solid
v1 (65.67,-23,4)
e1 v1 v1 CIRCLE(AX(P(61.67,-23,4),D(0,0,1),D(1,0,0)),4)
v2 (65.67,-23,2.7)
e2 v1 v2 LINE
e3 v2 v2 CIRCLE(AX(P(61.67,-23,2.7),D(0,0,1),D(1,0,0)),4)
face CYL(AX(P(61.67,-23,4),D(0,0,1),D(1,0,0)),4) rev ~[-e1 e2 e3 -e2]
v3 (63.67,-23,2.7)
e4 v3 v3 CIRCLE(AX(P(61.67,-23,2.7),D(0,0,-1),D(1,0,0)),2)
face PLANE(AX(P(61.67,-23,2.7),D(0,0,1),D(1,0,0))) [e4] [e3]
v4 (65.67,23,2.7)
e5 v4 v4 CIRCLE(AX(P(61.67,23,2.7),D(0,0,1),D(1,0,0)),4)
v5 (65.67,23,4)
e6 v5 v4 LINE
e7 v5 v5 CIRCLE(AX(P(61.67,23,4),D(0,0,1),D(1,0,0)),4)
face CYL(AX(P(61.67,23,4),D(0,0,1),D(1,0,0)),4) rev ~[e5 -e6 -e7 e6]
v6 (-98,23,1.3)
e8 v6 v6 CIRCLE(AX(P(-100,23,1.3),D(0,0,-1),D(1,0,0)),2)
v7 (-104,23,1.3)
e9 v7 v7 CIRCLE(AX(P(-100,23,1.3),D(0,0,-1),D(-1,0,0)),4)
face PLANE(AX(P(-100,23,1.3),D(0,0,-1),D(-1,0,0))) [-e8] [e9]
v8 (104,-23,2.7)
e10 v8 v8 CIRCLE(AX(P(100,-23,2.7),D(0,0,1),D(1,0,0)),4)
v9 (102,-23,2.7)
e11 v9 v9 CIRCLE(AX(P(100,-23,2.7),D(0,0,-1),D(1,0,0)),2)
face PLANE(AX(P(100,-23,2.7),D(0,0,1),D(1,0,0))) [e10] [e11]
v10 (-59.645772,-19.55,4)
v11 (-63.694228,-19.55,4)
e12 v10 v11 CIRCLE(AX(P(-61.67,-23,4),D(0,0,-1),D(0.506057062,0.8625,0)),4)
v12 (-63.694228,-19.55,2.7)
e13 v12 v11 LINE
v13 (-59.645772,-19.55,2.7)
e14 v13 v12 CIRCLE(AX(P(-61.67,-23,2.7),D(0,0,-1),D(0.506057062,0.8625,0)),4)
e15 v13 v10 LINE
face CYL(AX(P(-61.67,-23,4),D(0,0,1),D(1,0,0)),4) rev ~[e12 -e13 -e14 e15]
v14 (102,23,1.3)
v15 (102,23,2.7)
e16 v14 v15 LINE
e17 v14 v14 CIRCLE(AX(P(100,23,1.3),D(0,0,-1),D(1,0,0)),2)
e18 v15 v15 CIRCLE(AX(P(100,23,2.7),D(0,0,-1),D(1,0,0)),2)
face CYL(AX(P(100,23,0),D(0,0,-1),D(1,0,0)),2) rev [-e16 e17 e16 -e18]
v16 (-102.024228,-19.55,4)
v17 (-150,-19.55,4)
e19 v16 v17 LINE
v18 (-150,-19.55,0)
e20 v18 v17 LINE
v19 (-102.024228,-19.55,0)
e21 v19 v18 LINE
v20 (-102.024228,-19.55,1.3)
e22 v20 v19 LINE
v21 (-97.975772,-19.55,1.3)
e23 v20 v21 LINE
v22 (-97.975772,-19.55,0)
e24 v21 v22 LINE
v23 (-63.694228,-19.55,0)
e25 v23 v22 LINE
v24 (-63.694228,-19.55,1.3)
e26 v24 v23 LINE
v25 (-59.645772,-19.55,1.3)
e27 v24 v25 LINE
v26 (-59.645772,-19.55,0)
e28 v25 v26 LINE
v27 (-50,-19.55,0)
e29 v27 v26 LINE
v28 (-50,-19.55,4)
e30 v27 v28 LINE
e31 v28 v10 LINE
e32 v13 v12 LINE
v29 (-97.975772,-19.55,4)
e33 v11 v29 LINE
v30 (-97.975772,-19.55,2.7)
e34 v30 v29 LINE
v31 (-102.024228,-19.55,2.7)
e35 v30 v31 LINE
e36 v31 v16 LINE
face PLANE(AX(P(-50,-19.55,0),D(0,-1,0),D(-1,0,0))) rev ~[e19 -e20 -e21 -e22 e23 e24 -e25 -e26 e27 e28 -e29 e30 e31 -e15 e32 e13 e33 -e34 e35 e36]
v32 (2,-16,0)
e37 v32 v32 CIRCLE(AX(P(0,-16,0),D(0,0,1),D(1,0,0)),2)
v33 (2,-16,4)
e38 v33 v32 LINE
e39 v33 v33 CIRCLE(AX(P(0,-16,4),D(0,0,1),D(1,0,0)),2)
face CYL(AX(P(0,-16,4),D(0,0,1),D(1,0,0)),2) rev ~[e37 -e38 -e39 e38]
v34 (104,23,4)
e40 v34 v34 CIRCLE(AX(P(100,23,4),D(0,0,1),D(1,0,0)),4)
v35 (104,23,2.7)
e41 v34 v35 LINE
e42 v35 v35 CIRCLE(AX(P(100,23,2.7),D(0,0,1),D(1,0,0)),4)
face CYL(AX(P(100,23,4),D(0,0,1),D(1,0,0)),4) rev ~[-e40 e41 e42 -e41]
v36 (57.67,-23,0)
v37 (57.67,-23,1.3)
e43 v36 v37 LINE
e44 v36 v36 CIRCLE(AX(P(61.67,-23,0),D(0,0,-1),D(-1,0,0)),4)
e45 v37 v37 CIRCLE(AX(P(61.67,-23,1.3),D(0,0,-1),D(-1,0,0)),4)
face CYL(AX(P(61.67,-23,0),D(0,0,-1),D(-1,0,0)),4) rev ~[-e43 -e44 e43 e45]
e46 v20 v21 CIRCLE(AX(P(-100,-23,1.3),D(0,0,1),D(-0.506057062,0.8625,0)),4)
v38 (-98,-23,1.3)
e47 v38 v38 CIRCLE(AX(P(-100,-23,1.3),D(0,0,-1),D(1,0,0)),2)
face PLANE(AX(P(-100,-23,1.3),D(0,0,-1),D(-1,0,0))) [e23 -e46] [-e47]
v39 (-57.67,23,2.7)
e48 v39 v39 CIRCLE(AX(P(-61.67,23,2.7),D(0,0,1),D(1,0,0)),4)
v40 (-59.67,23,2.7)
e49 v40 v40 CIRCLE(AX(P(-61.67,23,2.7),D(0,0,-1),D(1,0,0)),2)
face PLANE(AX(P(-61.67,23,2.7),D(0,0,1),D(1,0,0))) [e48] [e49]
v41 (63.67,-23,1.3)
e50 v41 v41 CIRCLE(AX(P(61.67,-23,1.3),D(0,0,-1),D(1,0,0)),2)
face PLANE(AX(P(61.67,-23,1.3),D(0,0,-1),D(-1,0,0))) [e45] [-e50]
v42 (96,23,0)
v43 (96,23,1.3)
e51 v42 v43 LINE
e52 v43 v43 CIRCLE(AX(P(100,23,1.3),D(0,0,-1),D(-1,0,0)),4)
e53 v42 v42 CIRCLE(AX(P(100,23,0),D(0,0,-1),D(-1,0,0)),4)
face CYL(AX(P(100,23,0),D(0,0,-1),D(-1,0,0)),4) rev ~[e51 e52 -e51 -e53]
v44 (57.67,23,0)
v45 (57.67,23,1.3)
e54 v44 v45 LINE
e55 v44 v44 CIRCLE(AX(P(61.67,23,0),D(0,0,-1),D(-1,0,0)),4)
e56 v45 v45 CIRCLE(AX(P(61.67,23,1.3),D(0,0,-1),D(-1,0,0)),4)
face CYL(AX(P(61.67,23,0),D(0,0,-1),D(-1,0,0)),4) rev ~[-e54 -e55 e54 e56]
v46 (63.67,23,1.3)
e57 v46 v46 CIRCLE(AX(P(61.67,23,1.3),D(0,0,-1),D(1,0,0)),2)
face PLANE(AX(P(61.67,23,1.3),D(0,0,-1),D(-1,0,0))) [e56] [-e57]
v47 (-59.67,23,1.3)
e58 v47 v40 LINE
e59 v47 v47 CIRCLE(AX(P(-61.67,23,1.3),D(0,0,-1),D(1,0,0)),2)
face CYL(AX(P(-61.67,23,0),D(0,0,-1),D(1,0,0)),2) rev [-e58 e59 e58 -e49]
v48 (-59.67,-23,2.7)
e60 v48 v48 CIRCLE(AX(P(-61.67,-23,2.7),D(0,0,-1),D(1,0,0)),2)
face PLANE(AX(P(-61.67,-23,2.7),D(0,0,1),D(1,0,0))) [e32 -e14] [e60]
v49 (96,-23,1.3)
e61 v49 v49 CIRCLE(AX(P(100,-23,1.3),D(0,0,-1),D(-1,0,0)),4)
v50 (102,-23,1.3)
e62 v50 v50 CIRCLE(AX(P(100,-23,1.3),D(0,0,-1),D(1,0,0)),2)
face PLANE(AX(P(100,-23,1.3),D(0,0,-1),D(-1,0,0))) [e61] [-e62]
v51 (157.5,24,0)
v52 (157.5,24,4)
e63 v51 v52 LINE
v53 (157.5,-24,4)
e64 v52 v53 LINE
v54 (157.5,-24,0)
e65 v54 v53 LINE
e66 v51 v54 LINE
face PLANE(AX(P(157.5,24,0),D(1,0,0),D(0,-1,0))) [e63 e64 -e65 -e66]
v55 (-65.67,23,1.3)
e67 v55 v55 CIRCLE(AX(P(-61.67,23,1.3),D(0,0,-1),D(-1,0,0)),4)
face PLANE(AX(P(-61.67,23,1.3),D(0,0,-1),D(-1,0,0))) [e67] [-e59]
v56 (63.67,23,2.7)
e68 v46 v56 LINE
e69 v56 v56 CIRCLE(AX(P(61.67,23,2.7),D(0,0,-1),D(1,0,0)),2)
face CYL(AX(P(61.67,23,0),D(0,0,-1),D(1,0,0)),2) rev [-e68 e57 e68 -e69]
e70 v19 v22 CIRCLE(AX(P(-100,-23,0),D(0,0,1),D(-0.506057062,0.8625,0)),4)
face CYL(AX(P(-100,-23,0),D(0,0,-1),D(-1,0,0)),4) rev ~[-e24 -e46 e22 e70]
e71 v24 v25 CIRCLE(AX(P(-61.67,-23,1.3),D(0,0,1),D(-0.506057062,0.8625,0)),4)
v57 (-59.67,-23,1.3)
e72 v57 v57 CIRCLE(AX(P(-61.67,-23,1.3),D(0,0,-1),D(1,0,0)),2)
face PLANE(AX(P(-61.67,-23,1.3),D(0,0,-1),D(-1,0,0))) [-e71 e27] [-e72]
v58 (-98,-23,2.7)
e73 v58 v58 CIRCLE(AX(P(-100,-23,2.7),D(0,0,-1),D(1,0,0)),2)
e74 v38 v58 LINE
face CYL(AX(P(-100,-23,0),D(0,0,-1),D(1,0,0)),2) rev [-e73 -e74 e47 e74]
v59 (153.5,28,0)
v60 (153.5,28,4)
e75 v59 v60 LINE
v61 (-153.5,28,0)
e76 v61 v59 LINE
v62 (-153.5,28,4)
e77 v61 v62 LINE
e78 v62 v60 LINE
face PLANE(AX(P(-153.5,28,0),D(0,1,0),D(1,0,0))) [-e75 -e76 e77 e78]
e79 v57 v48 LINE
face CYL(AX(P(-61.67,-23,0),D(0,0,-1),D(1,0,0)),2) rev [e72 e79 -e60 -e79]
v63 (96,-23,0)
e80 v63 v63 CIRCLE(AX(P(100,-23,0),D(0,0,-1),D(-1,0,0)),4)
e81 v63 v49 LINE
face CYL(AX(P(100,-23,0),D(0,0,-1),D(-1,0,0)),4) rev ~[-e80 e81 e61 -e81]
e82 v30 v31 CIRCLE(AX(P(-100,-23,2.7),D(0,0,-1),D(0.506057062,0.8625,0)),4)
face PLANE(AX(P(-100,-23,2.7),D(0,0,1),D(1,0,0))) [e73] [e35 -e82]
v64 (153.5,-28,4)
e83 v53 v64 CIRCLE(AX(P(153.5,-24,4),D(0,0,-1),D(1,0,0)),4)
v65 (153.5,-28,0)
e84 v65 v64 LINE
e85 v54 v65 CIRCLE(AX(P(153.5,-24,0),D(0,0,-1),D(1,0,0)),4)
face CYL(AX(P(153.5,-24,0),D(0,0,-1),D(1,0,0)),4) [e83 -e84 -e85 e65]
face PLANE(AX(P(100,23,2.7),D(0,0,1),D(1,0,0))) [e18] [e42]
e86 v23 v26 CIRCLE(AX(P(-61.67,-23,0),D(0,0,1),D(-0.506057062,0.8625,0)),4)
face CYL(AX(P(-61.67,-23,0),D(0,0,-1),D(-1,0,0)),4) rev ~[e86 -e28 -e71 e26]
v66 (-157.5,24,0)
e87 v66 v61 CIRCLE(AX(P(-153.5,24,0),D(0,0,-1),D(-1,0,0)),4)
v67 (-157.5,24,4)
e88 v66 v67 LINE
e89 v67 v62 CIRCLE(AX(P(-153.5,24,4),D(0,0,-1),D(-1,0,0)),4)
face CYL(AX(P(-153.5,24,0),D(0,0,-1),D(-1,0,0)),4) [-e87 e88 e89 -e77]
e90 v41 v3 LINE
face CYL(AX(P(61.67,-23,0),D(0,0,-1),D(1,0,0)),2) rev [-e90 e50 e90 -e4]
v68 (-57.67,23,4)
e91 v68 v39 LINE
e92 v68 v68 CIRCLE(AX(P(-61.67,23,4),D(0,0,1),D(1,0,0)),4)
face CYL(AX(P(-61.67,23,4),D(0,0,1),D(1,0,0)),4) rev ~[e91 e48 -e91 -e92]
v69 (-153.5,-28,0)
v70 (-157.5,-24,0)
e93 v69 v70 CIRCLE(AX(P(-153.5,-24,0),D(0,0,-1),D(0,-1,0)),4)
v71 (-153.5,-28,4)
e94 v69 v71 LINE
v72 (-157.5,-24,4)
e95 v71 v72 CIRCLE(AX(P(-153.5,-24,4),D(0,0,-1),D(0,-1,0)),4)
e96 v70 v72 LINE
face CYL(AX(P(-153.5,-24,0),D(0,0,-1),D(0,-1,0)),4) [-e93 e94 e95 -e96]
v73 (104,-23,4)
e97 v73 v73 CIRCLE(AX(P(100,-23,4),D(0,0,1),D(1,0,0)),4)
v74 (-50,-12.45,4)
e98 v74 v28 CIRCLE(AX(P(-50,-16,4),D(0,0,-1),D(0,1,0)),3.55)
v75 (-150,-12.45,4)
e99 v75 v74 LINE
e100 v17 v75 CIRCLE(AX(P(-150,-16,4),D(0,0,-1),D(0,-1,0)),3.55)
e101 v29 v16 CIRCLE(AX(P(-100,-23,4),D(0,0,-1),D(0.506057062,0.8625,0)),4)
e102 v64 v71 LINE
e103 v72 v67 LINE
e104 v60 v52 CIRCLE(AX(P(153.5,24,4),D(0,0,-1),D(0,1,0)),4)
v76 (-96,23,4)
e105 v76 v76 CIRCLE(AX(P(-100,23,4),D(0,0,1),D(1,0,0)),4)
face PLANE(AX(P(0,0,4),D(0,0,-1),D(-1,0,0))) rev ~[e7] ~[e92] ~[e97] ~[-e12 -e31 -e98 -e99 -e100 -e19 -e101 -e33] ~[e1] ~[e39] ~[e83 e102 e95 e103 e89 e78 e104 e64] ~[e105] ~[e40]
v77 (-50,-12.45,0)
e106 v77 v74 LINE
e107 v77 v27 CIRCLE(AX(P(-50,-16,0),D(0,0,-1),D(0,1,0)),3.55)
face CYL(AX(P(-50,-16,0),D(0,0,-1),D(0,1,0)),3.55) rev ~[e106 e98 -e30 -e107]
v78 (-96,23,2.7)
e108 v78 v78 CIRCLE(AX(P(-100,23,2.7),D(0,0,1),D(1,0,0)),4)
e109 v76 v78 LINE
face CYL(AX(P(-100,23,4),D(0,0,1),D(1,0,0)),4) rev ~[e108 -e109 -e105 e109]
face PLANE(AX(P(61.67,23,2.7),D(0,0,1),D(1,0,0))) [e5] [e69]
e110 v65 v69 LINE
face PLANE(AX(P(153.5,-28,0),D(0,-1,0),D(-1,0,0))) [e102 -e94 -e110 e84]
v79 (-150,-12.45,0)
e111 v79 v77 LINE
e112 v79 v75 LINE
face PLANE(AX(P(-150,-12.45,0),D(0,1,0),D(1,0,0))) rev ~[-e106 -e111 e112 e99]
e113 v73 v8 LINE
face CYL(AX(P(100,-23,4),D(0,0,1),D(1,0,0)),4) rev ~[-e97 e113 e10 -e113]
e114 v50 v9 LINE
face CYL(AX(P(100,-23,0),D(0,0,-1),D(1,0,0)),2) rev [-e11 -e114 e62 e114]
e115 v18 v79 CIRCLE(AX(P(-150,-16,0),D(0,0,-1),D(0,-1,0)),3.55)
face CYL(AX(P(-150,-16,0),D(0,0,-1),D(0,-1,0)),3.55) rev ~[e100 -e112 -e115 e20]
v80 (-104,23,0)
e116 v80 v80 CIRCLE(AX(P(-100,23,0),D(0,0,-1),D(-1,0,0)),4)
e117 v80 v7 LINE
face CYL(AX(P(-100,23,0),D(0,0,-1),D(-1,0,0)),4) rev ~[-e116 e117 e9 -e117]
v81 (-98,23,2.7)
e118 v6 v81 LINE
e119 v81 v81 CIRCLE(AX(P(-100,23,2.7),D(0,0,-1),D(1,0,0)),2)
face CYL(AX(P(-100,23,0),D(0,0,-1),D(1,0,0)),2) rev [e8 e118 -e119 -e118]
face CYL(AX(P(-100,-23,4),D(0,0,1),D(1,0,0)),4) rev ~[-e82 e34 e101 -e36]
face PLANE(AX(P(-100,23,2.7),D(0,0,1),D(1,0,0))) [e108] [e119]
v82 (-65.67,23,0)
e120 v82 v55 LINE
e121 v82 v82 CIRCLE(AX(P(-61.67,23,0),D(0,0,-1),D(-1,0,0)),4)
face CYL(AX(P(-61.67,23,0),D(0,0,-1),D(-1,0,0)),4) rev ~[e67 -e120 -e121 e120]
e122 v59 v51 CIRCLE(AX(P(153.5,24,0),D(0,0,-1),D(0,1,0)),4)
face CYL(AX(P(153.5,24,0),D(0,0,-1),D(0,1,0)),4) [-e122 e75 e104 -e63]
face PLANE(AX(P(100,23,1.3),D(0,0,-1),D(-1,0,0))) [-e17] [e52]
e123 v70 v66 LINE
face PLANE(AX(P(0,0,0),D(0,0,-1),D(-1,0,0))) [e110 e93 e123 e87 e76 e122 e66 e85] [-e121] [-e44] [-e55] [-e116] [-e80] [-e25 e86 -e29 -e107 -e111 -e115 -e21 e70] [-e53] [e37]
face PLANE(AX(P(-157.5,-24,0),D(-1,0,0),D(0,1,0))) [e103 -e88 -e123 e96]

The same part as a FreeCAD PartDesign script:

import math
import FreeCAD as App
import Part
import Sketcher
from FreeCAD import Vector
Q = App.Units.Quantity

doc = App.newDocument("Part")
body = doc.addObject("PartDesign::Body", "Body")

# Sketch on XY plane
sketch1 = doc.addObject("Sketcher::SketchObject", "Sketch")
body.addObject(sketch1)
sketch1.AttachmentSupport = (doc.XY_Plane, [""])
sketch1.MapMode = "FlatFace"
sketch1.addGeometry(Part.LineSegment(Vector(-153.5, -28, 0), Vector(153.5, -28, 0)), False)
sketch1.addGeometry(Part.ArcOfCircle(Part.Circle(Vector(153.5, -24, 0), Vector(0, 0, 1), 4), math.radians(-90), math.radians(0)), False)
sketch1.addGeometry(Part.LineSegment(Vector(157.5, -24, 0), Vector(157.5, 24, 0)), False)
sketch1.addGeometry(Part.ArcOfCircle(Part.Circle(Vector(153.5, 24, 0), Vector(0, 0, 1), 4), math.radians(0), math.radians(90)), False)
sketch1.addGeometry(Part.LineSegment(Vector(153.5, 28, 0), Vector(-153.5, 28, 0)), False)
sketch1.addGeometry(Part.ArcOfCircle(Part.Circle(Vector(-153.5, 24, 0), Vector(0, 0, 1), 4), math.radians(90), math.radians(180)), False)
sketch1.addGeometry(Part.LineSegment(Vector(-157.5, 24, 0), Vector(-157.5, -24, 0)), False)
sketch1.addGeometry(Part.ArcOfCircle(Part.Circle(Vector(-153.5, -24, 0), Vector(0, 0, 1), 4), math.radians(180), math.radians(270)), False)
sketch1.addGeometry(Part.Circle(Vector(100, -23, 0), Vector(0, 0, 1), 2), False)
sketch1.addGeometry(Part.Circle(Vector(61.7, -23, 0), Vector(0, 0, 1), 2), False)
sketch1.addGeometry(Part.Circle(Vector(-61.7, -23, 0), Vector(0, 0, 1), 2), False)
sketch1.addGeometry(Part.Circle(Vector(-100, -23, 0), Vector(0, 0, 1), 2), False)
sketch1.addGeometry(Part.LineSegment(Vector(-150, -12.4, 0), Vector(-50, -12.4, 0)), False)
sketch1.addGeometry(Part.ArcOfCircle(Part.Circle(Vector(-50, -16, 0), Vector(0, 0, 1), 3.5), math.radians(-90), math.radians(90)), False)
sketch1.addGeometry(Part.LineSegment(Vector(-50, -19.6, 0), Vector(-150, -19.6, 0)), False)
sketch1.addGeometry(Part.ArcOfCircle(Part.Circle(Vector(-150, -16, 0), Vector(0, 0, 1), 3.5), math.radians(90), math.radians(270)), False)
sketch1.addGeometry(Part.Circle(Vector(100, 23, 0), Vector(0, 0, 1), 2), False)
sketch1.addGeometry(Part.Circle(Vector(61.7, 23, 0), Vector(0, 0, 1), 2), False)
sketch1.addGeometry(Part.Circle(Vector(-61.7, 23, 0), Vector(0, 0, 1), 2), False)
sketch1.addGeometry(Part.Circle(Vector(-100, 23, 0), Vector(0, 0, 1), 2), False)
sketch1.addConstraint(Sketcher.Constraint("Tangent", 0, 2, 1, 1))
sketch1.addConstraint(Sketcher.Constraint("Tangent", 1, 2, 2, 1))
sketch1.addConstraint(Sketcher.Constraint("Tangent", 2, 2, 3, 1))
sketch1.addConstraint(Sketcher.Constraint("Tangent", 3, 2, 4, 1))
sketch1.addConstraint(Sketcher.Constraint("Tangent", 4, 2, 5, 1))
sketch1.addConstraint(Sketcher.Constraint("Tangent", 5, 2, 6, 1))
sketch1.addConstraint(Sketcher.Constraint("Tangent", 6, 2, 7, 1))
sketch1.addConstraint(Sketcher.Constraint("Tangent", 7, 2, 0, 1))
sketch1.addConstraint(Sketcher.Constraint("Tangent", 12, 2, 13, 2))
sketch1.addConstraint(Sketcher.Constraint("Tangent", 13, 1, 14, 1))
sketch1.addConstraint(Sketcher.Constraint("Tangent", 14, 2, 15, 2))
sketch1.addConstraint(Sketcher.Constraint("Tangent", 15, 1, 12, 1))
sketch1.addConstraint(Sketcher.Constraint("Horizontal", 0))
sketch1.addConstraint(Sketcher.Constraint("Vertical", 2))
sketch1.addConstraint(Sketcher.Constraint("Horizontal", 4))
sketch1.addConstraint(Sketcher.Constraint("Vertical", 6))
sketch1.addConstraint(Sketcher.Constraint("Horizontal", 12))
sketch1.addConstraint(Sketcher.Constraint("Horizontal", 14))
sketch1.addConstraint(Sketcher.Constraint("Equal", 1, 3))
sketch1.addConstraint(Sketcher.Constraint("Equal", 3, 5))
sketch1.addConstraint(Sketcher.Constraint("Equal", 5, 7))
sketch1.addConstraint(Sketcher.Constraint("Equal", 8, 9))
sketch1.addConstraint(Sketcher.Constraint("Equal", 9, 10))
sketch1.addConstraint(Sketcher.Constraint("Equal", 10, 11))
sketch1.addConstraint(Sketcher.Constraint("Equal", 11, 16))
sketch1.addConstraint(Sketcher.Constraint("Equal", 16, 17))
sketch1.addConstraint(Sketcher.Constraint("Equal", 17, 18))
sketch1.addConstraint(Sketcher.Constraint("Equal", 18, 19))
sketch1.addConstraint(Sketcher.Constraint("Symmetric", 1, 3, 5, 3, -1, 1))
sketch1.addConstraint(Sketcher.Constraint("Symmetric", 11, 3, 16, 3, -1, 1))
sketch1.addConstraint(Sketcher.Constraint("Symmetric", 10, 3, 17, 3, -1, 1))
sketch1.addConstraint(Sketcher.Constraint("Symmetric", 9, 3, 18, 3, -1, 1))
sketch1.addConstraint(Sketcher.Constraint("Symmetric", 8, 3, 19, 3, -1, 1))
sketch1.addConstraint(Sketcher.Constraint("Symmetric", 9, 3, 10, 3, -2))
sketch1.addConstraint(Sketcher.Constraint("Symmetric", 8, 3, 11, 3, -2))
sketch1.addConstraint(Sketcher.Constraint("Horizontal", 8, 3, 9, 3))
sketch1.addConstraint(Sketcher.Constraint("Diameter", 8, Q("4 mm")))
sketch1.addConstraint(Sketcher.Constraint("Radius", 1, Q("4 mm")))
sketch1.addConstraint(Sketcher.Constraint("DistanceX", 0, 1, 0, 2, Q("307 mm")))
sketch1.addConstraint(Sketcher.Constraint("DistanceX", 12, 1, 12, 2, Q("100 mm")))
sketch1.addConstraint(Sketcher.Constraint("DistanceY", 2, 1, 2, 2, Q("48 mm")))
sketch1.addConstraint(Sketcher.Constraint("Radius", 13, Q("3.55 mm")))
sketch1.addConstraint(Sketcher.Constraint("DistanceX", -1, 1, 8, 3, Q("100 mm")))
sketch1.addConstraint(Sketcher.Constraint("DistanceY", 8, 3, -1, 1, Q("23 mm")))
sketch1.addConstraint(Sketcher.Constraint("DistanceX", 13, 3, -1, 1, Q("50 mm")))
sketch1.addConstraint(Sketcher.Constraint("DistanceY", 13, 3, -1, 1, Q("16 mm")))
sketch1.addConstraint(Sketcher.Constraint("DistanceX", -1, 1, 9, 3, Q("61.67 mm")))
pad1 = doc.addObject("PartDesign::Pad", "Pad")
body.addObject(pad1)
pad1.Profile = sketch1
pad1.Length = 4

# Sketch on XY plane
sketch2 = doc.addObject("Sketcher::SketchObject", "Sketch001")
body.addObject(sketch2)
sketch2.AttachmentSupport = (doc.XY_Plane, [""])
sketch2.MapMode = "FlatFace"
sketch2.AttachmentOffset = App.Placement(Vector(0, 0, 4), App.Rotation())
sketch2.addGeometry(Part.Circle(Vector(-100, 23, 0), Vector(0, 0, 1), 4), False)
sketch2.addGeometry(Part.Circle(Vector(-61.7, 23, 0), Vector(0, 0, 1), 4), False)
sketch2.addGeometry(Part.Circle(Vector(-100, -23, 0), Vector(0, 0, 1), 4), False)
sketch2.addGeometry(Part.Circle(Vector(-61.7, -23, 0), Vector(0, 0, 1), 4), False)
sketch2.addGeometry(Part.Circle(Vector(61.7, -23, 0), Vector(0, 0, 1), 4), False)
sketch2.addGeometry(Part.Circle(Vector(100, -23, 0), Vector(0, 0, 1), 4), False)
sketch2.addGeometry(Part.Circle(Vector(61.7, 23, 0), Vector(0, 0, 1), 4), False)
sketch2.addGeometry(Part.Circle(Vector(100, 23, 0), Vector(0, 0, 1), 4), False)
sketch2.addConstraint(Sketcher.Constraint("Equal", 0, 1))
sketch2.addConstraint(Sketcher.Constraint("Equal", 1, 2))
sketch2.addConstraint(Sketcher.Constraint("Equal", 2, 3))
sketch2.addConstraint(Sketcher.Constraint("Equal", 3, 4))
sketch2.addConstraint(Sketcher.Constraint("Equal", 4, 5))
sketch2.addConstraint(Sketcher.Constraint("Equal", 5, 6))
sketch2.addConstraint(Sketcher.Constraint("Equal", 6, 7))
sketch2.addConstraint(Sketcher.Constraint("Symmetric", 1, 3, 4, 3, -1, 1))
sketch2.addConstraint(Sketcher.Constraint("Symmetric", 0, 3, 5, 3, -1, 1))
sketch2.addConstraint(Sketcher.Constraint("Symmetric", 3, 3, 6, 3, -1, 1))
sketch2.addConstraint(Sketcher.Constraint("Symmetric", 2, 3, 7, 3, -1, 1))
sketch2.addConstraint(Sketcher.Constraint("Symmetric", 3, 3, 4, 3, -2))
sketch2.addConstraint(Sketcher.Constraint("Symmetric", 2, 3, 5, 3, -2))
sketch2.addConstraint(Sketcher.Constraint("Horizontal", 0, 3, 1, 3))
sketch2.addConstraint(Sketcher.Constraint("Diameter", 0, Q("8 mm")))
sketch2.addConstraint(Sketcher.Constraint("DistanceX", 0, 3, -1, 1, Q("100 mm")))
sketch2.addConstraint(Sketcher.Constraint("DistanceY", -1, 1, 0, 3, Q("23 mm")))
sketch2.addConstraint(Sketcher.Constraint("DistanceX", 1, 3, -1, 1, Q("61.67 mm")))
pocket1 = doc.addObject("PartDesign::Pocket", "Pocket")
body.addObject(pocket1)
pocket1.Profile = sketch2
pocket1.Length = 1.3

# Sketch on XY plane
sketch3 = doc.addObject("Sketcher::SketchObject", "Sketch002")
body.addObject(sketch3)
sketch3.AttachmentSupport = (doc.XY_Plane, [""])
sketch3.MapMode = "FlatFace"
sketch3.AttachmentOffset = App.Placement(Vector(0, 0, 4), App.Rotation())
sketch3.addGeometry(Part.Circle(Vector(0, -16, 0), Vector(0, 0, 1), 2), False)
sketch3.addConstraint(Sketcher.Constraint("PointOnObject", 0, 3, -2))
sketch3.addConstraint(Sketcher.Constraint("Diameter", 0, Q("4 mm")))
sketch3.addConstraint(Sketcher.Constraint("DistanceY", 0, 3, -1, 1, Q("16 mm")))
pocket2 = doc.addObject("PartDesign::Pocket", "Pocket001")
body.addObject(pocket2)
pocket2.Profile = sketch3
pocket2.Length = 10

# Sketch on XY plane
sketch4 = doc.addObject("Sketcher::SketchObject", "Sketch003")
body.addObject(sketch4)
sketch4.AttachmentSupport = (doc.XY_Plane, [""])
sketch4.MapMode = "FlatFace"
sketch4.addGeometry(Part.Circle(Vector(100, -23, 0), Vector(0, 0, 1), 4), False)
sketch4.addGeometry(Part.Circle(Vector(61.7, -23, 0), Vector(0, 0, 1), 4), False)
sketch4.addGeometry(Part.Circle(Vector(-61.7, -23, 0), Vector(0, 0, 1), 4), False)
sketch4.addGeometry(Part.Circle(Vector(-100, -23, 0), Vector(0, 0, 1), 4), False)
sketch4.addGeometry(Part.Circle(Vector(-100, 23, 0), Vector(0, 0, 1), 4), False)
sketch4.addGeometry(Part.Circle(Vector(-61.7, 23, 0), Vector(0, 0, 1), 4), False)
sketch4.addGeometry(Part.Circle(Vector(61.7, 23, 0), Vector(0, 0, 1), 4), False)
sketch4.addGeometry(Part.Circle(Vector(100, 23, 0), Vector(0, 0, 1), 4), False)
sketch4.addConstraint(Sketcher.Constraint("Equal", 0, 1))
sketch4.addConstraint(Sketcher.Constraint("Equal", 1, 2))
sketch4.addConstraint(Sketcher.Constraint("Equal", 2, 3))
sketch4.addConstraint(Sketcher.Constraint("Equal", 3, 4))
sketch4.addConstraint(Sketcher.Constraint("Equal", 4, 5))
sketch4.addConstraint(Sketcher.Constraint("Equal", 5, 6))
sketch4.addConstraint(Sketcher.Constraint("Equal", 6, 7))
sketch4.addConstraint(Sketcher.Constraint("Symmetric", 0, 3, 4, 3, -1, 1))
sketch4.addConstraint(Sketcher.Constraint("Symmetric", 1, 3, 5, 3, -1, 1))
sketch4.addConstraint(Sketcher.Constraint("Symmetric", 2, 3, 6, 3, -1, 1))
sketch4.addConstraint(Sketcher.Constraint("Symmetric", 3, 3, 7, 3, -1, 1))
sketch4.addConstraint(Sketcher.Constraint("Symmetric", 1, 3, 2, 3, -2))
sketch4.addConstraint(Sketcher.Constraint("Symmetric", 0, 3, 3, 3, -2))
sketch4.addConstraint(Sketcher.Constraint("Horizontal", 0, 3, 1, 3))
sketch4.addConstraint(Sketcher.Constraint("Diameter", 0, Q("8 mm")))
sketch4.addConstraint(Sketcher.Constraint("DistanceX", -1, 1, 0, 3, Q("100 mm")))
sketch4.addConstraint(Sketcher.Constraint("DistanceY", 0, 3, -1, 1, Q("23 mm")))
sketch4.addConstraint(Sketcher.Constraint("DistanceX", -1, 1, 1, 3, Q("61.67 mm")))
pocket3 = doc.addObject("PartDesign::Pocket", "Pocket002")
body.addObject(pocket3)
pocket3.Profile = sketch4
pocket3.Length = 1.3
pocket3.Reversed = True

doc.recompute()
